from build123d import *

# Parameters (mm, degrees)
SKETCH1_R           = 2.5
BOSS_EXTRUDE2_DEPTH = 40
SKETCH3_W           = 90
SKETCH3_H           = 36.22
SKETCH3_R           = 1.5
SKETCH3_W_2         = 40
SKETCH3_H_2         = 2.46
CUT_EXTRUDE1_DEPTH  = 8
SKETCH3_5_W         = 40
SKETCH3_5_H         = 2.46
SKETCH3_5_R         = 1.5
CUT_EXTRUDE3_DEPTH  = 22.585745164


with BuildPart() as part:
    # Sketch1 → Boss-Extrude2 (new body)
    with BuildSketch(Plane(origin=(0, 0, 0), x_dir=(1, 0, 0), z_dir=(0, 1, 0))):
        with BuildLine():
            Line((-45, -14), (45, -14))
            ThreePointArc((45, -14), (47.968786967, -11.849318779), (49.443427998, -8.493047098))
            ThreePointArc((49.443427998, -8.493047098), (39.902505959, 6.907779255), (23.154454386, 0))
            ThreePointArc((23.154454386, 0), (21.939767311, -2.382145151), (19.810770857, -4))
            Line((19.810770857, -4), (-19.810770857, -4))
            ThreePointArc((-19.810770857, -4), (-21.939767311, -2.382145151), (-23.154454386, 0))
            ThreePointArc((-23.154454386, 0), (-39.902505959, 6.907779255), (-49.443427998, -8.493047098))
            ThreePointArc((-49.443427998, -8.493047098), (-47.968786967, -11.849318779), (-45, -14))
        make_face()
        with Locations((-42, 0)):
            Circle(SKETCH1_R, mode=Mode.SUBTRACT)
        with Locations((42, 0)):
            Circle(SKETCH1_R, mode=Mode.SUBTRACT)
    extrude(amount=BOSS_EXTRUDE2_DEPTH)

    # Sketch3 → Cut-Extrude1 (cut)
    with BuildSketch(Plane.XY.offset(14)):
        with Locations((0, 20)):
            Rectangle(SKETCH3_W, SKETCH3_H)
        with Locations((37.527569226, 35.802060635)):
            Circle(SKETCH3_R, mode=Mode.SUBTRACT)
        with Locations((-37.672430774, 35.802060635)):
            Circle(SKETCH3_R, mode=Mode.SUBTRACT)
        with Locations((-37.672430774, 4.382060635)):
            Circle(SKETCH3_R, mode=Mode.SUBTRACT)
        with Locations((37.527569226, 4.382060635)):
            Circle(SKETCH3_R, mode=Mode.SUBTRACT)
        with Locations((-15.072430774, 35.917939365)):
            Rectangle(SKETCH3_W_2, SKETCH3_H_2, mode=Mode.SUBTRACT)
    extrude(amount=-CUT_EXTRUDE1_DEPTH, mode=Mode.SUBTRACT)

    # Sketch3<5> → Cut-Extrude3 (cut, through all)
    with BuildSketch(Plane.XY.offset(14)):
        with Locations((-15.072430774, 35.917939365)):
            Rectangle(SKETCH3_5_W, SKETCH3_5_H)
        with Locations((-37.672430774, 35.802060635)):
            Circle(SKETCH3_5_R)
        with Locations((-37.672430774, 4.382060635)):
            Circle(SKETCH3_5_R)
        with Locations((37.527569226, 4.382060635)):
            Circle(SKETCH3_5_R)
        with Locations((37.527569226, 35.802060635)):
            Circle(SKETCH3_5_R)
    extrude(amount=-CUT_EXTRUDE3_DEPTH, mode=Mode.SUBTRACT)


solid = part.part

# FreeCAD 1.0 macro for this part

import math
import FreeCAD as App
import Part
import Sketcher

V = App.Vector
Q = App.Units.Quantity

doc = App.newDocument("Part")
body = doc.addObject("PartDesign::Body", "Body")

# Sketch on XZ plane
sketch1 = body.newObject("Sketcher::SketchObject", "Sketch")
sketch1.AttachmentSupport = (doc.getObject("XZ_Plane"), [""])
sketch1.MapMode = "FlatFace"
sketch1.addGeometry([
    Part.LineSegment(V(-45, 14, 0), V(45, 14, 0)),  # 0
    Part.ArcOfCircle(Part.Circle(V(42.5, 7.5, 0), V(0, 0, 1), 7), math.radians(9), math.radians(69)),  # 1
    Part.ArcOfCircle(Part.Circle(V(35.6, 6.4, 0), V(0, 0, 1), 14), math.radians(-153), math.radians(9)),  # 2
    Part.ArcOfCircle(Part.Circle(V(17.3, -1.5, 0), V(0, 0, 1), 6), math.radians(14), math.radians(66)),  # 3
    Part.LineSegment(V(19.8, 4, 0), V(-19.8, 4, 0)),  # 4
    Part.ArcOfCircle(Part.Circle(V(-17.3, -1.5, 0), V(0, 0, 1), 6), math.radians(114), math.radians(166)),  # 5
    Part.ArcOfCircle(Part.Circle(V(-35.6, 6.4, 0), V(0, 0, 1), 14), math.radians(171), math.radians(333)),  # 6
    Part.ArcOfCircle(Part.Circle(V(-42.5, 7.5, 0), V(0, 0, 1), 7), math.radians(111), math.radians(171)),  # 7
    Part.Circle(V(-42, 0, 0), V(0, 0, 1), 2.5),  # 8
    Part.Circle(V(42, 0, 0), V(0, 0, 1), 2.5),  # 9
], False)
sketch1.addConstraint([
    Sketcher.Constraint("Coincident", 0, 2, 1, 2),
    Sketcher.Constraint("Tangent", 1, 1, 2, 2),
    Sketcher.Constraint("Coincident", 2, 1, 3, 1),
    Sketcher.Constraint("Coincident", 3, 2, 4, 1),
    Sketcher.Constraint("Coincident", 4, 2, 5, 1),
    Sketcher.Constraint("Coincident", 5, 2, 6, 2),
    Sketcher.Constraint("Tangent", 6, 1, 7, 2),
    Sketcher.Constraint("Coincident", 7, 1, 0, 1),
    Sketcher.Constraint("Horizontal", 0),
    Sketcher.Constraint("Horizontal", 4),
    Sketcher.Constraint("Equal", 3, 5),
    Sketcher.Constraint("Equal", 2, 6),
    Sketcher.Constraint("Equal", 1, 7),
    Sketcher.Constraint("Equal", 8, 9),
    Sketcher.Constraint("Symmetric", 8, 3, 9, 3, -1, 1),
    Sketcher.Constraint("Symmetric", 2, 1, 5, 2, -1, 1),
    Sketcher.Constraint("Symmetric", 3, 3, 5, 3, -2),
    Sketcher.Constraint("Symmetric", 1, 3, 7, 3, -2),
    Sketcher.Constraint("PointOnObject", 8, 3, -1),
    Sketcher.Constraint("Diameter", 8, Q("5 mm")),
    Sketcher.Constraint("Radius", 1, Q("7 mm")),
    Sketcher.Constraint("Radius", 2, Q("14 mm")),
    Sketcher.Constraint("Radius", 3, Q("6 mm")),
    Sketcher.Constraint("DistanceX", 0, 1, 0, 2, Q("90 mm")),
    Sketcher.Constraint("DistanceX", 8, 3, -1, 1, Q("42 mm")),
    Sketcher.Constraint("DistanceY", -1, 1, 0, 2, Q("14 mm")),
    Sketcher.Constraint("DistanceY", -1, 1, 3, 2, Q("4 mm")),
    Sketcher.Constraint("DistanceX", 4, 2, 4, 1, Q("39.621542 mm")),
    Sketcher.Constraint("DistanceY", -1, 1, 1, 3, Q("7.453651 mm")),
    Sketcher.Constraint("DistanceX", 3, 3, 2, 3, Q("18.26232 mm")),
])
pad1 = body.newObject("PartDesign::Pad", "Pad")
pad1.Profile = sketch1
pad1.Length = 40
pad1.Reversed = True

# Sketch on XY plane
sketch2 = body.newObject("Sketcher::SketchObject", "Sketch001")
sketch2.AttachmentSupport = (doc.getObject("XY_Plane"), [""])
sketch2.MapMode = "FlatFace"
sketch2.AttachmentOffset = App.Placement(V(0, 0, 14), App.Rotation())
sketch2.addGeometry([
    Part.LineSegment(V(-45, 38.1, 0), V(-45, 1.9, 0)),  # 0
    Part.LineSegment(V(-45, 1.9, 0), V(45, 1.9, 0)),  # 1
    Part.LineSegment(V(45, 1.9, 0), V(45, 38.1, 0)),  # 2
    Part.LineSegment(V(45, 38.1, 0), V(-45, 38.1, 0)),  # 3
    Part.Circle(V(-37.7, 4.4, 0), V(0, 0, 1), 1.5),  # 4
    Part.Circle(V(37.5, 4.4, 0), V(0, 0, 1), 1.5),  # 5
    Part.Circle(V(-37.7, 35.8, 0), V(0, 0, 1), 1.5),  # 6
    Part.LineSegment(V(4.9, 34.7, 0), V(-35.1, 34.7, 0)),  # 7
    Part.LineSegment(V(-35.1, 34.7, 0), V(-35.1, 37.1, 0)),  # 8
    Part.LineSegment(V(-35.1, 37.1, 0), V(4.9, 37.1, 0)),  # 9
    Part.LineSegment(V(4.9, 37.1, 0), V(4.9, 34.7, 0)),  # 10
    Part.Circle(V(37.5, 35.8, 0), V(0, 0, 1), 1.5),  # 11
], False)
sketch2.addConstraint([
    Sketcher.Constraint("Coincident", 0, 2, 1, 1),
    Sketcher.Constraint("Coincident", 1, 2, 2, 1),
    Sketcher.Constraint("Coincident", 2, 2, 3, 1),
    Sketcher.Constraint("Coincident", 3, 2, 0, 1),
    Sketcher.Constraint("Coincident", 7, 2, 8, 1),
    Sketcher.Constraint("Coincident", 8, 2, 9, 1),
    Sketcher.Constraint("Coincident", 9, 2, 10, 1),
    Sketcher.Constraint("Coincident", 10, 2, 7, 1),
    Sketcher.Constraint("Vertical", 0),
    Sketcher.Constraint("Horizontal", 1),
    Sketcher.Constraint("Vertical", 2),
    Sketcher.Constraint("Horizontal", 3),
    Sketcher.Constraint("Horizontal", 7),
    Sketcher.Constraint("Vertical", 8),
    Sketcher.Constraint("Horizontal", 9),
    Sketcher.Constraint("Vertical", 10),
    Sketcher.Constraint("Equal", 4, 5),
    Sketcher.Constraint("Equal", 5, 6),
    Sketcher.Constraint("Equal", 6, 11),
    Sketcher.Constraint("Horizontal", 4, 3, 5, 3),
    Sketcher.Constraint("Horizontal", 6, 3, 11, 3),
    Sketcher.Constraint("Vertical", 4, 3, 6, 3),
    Sketcher.Constraint("Vertical", 5, 3, 11, 3),
    Sketcher.Constraint("Diameter", 4, Q("3 mm")),
    Sketcher.Constraint("DistanceX", 1, 1, 1, 2, Q("90 mm")),
    Sketcher.Constraint("DistanceX", 7, 2, 7, 1, Q("40 mm")),
    Sketcher.Constraint("DistanceX", 0, 2, -1, 1, Q("45 mm")),
    Sketcher.Constraint("DistanceY", 0, 2, 0, 1, Q("36.22 mm")),
    Sketcher.Constraint("DistanceY", 8, 1, 8, 2, Q("2.46 mm")),
    Sketcher.Constraint("DistanceX", 4, 3, 5, 3, Q("75.2 mm")),
    Sketcher.Constraint("DistanceX", 6, 3, 7, 2, Q("2.6 mm")),
    Sketcher.Constraint("DistanceY", -1, 1, 0, 2, Q("1.89 mm")),
    Sketcher.Constraint("DistanceY", 4, 3, 6, 3, Q("31.42 mm")),
    Sketcher.Constraint("DistanceX", 4, 3, -1, 1, Q("37.672431 mm")),
    Sketcher.Constraint("DistanceY", -1, 1, 4, 3, Q("4.382061 mm")),
    Sketcher.Constraint("DistanceY", -1, 1, 7, 2, Q("34.687939 mm")),
])
pocket1 = body.newObject("PartDesign::Pocket", "Pocket")
pocket1.Profile = sketch2
pocket1.Length = 8

# Sketch on XY plane
sketch3 = body.newObject("Sketcher::SketchObject", "Sketch002")
sketch3.AttachmentSupport = (doc.getObject("XY_Plane"), [""])
sketch3.MapMode = "FlatFace"
sketch3.AttachmentOffset = App.Placement(V(0, 0, 14), App.Rotation())
sketch3.addGeometry([
    Part.LineSegment(V(-35.1, 37.1, 0), V(-35.1, 34.7, 0)),  # 0
    Part.LineSegment(V(-35.1, 34.7, 0), V(4.9, 34.7, 0)),  # 1
    Part.LineSegment(V(4.9, 34.7, 0), V(4.9, 37.1, 0)),  # 2
    Part.LineSegment(V(4.9, 37.1, 0), V(-35.1, 37.1, 0)),  # 3
    Part.Circle(V(-37.7, 35.8, 0), V(0, 0, 1), 1.5),  # 4
    Part.Circle(V(-37.7, 4.4, 0), V(0, 0, 1), 1.5),  # 5
    Part.Circle(V(37.5, 4.4, 0), V(0, 0, 1), 1.5),  # 6
    Part.Circle(V(37.5, 35.8, 0), V(0, 0, 1), 1.5),  # 7
], False)
sketch3.addConstraint([
    Sketcher.Constraint("Coincident", 0, 2, 1, 1),
    Sketcher.Constraint("Coincident", 1, 2, 2, 1),
    Sketcher.Constraint("Coincident", 2, 2, 3, 1),
    Sketcher.Constraint("Coincident", 3, 2, 0, 1),
    Sketcher.Constraint("Vertical", 0),
    Sketcher.Constraint("Horizontal", 1),
    Sketcher.Constraint("Vertical", 2),
    Sketcher.Constraint("Horizontal", 3),
    Sketcher.Constraint("Equal", 4, 5),
    Sketcher.Constraint("Equal", 5, 6),
    Sketcher.Constraint("Equal", 6, 7),
    Sketcher.Constraint("Horizontal", 5, 3, 6, 3),
    Sketcher.Constraint("Horizontal", 4, 3, 7, 3),
    Sketcher.Constraint("Vertical", 4, 3, 5, 3),
    Sketcher.Constraint("Vertical", 6, 3, 7, 3),
    Sketcher.Constraint("Diameter", 4, Q("3 mm")),
    Sketcher.Constraint("DistanceX", 1, 1, 1, 2, Q("40 mm")),
    Sketcher.Constraint("DistanceY", 0, 2, 0, 1, Q("2.46 mm")),
    Sketcher.Constraint("DistanceX", 5, 3, 6, 3, Q("75.2 mm")),
    Sketcher.Constraint("DistanceX", 4, 3, 0, 2, Q("2.6 mm")),
    Sketcher.Constraint("DistanceY", 5, 3, 4, 3, Q("31.42 mm")),
    Sketcher.Constraint("DistanceX", 4, 3, -1, 1, Q("37.672431 mm")),
    Sketcher.Constraint("DistanceY", -1, 1, 4, 3, Q("35.802061 mm")),
    Sketcher.Constraint("DistanceY", -1, 1, 0, 2, Q("34.687939 mm")),
])
pocket2 = body.newObject("PartDesign::Pocket", "Pocket001")
pocket2.Profile = sketch3
pocket2.Type = "ThroughAll"

doc.recompute()
